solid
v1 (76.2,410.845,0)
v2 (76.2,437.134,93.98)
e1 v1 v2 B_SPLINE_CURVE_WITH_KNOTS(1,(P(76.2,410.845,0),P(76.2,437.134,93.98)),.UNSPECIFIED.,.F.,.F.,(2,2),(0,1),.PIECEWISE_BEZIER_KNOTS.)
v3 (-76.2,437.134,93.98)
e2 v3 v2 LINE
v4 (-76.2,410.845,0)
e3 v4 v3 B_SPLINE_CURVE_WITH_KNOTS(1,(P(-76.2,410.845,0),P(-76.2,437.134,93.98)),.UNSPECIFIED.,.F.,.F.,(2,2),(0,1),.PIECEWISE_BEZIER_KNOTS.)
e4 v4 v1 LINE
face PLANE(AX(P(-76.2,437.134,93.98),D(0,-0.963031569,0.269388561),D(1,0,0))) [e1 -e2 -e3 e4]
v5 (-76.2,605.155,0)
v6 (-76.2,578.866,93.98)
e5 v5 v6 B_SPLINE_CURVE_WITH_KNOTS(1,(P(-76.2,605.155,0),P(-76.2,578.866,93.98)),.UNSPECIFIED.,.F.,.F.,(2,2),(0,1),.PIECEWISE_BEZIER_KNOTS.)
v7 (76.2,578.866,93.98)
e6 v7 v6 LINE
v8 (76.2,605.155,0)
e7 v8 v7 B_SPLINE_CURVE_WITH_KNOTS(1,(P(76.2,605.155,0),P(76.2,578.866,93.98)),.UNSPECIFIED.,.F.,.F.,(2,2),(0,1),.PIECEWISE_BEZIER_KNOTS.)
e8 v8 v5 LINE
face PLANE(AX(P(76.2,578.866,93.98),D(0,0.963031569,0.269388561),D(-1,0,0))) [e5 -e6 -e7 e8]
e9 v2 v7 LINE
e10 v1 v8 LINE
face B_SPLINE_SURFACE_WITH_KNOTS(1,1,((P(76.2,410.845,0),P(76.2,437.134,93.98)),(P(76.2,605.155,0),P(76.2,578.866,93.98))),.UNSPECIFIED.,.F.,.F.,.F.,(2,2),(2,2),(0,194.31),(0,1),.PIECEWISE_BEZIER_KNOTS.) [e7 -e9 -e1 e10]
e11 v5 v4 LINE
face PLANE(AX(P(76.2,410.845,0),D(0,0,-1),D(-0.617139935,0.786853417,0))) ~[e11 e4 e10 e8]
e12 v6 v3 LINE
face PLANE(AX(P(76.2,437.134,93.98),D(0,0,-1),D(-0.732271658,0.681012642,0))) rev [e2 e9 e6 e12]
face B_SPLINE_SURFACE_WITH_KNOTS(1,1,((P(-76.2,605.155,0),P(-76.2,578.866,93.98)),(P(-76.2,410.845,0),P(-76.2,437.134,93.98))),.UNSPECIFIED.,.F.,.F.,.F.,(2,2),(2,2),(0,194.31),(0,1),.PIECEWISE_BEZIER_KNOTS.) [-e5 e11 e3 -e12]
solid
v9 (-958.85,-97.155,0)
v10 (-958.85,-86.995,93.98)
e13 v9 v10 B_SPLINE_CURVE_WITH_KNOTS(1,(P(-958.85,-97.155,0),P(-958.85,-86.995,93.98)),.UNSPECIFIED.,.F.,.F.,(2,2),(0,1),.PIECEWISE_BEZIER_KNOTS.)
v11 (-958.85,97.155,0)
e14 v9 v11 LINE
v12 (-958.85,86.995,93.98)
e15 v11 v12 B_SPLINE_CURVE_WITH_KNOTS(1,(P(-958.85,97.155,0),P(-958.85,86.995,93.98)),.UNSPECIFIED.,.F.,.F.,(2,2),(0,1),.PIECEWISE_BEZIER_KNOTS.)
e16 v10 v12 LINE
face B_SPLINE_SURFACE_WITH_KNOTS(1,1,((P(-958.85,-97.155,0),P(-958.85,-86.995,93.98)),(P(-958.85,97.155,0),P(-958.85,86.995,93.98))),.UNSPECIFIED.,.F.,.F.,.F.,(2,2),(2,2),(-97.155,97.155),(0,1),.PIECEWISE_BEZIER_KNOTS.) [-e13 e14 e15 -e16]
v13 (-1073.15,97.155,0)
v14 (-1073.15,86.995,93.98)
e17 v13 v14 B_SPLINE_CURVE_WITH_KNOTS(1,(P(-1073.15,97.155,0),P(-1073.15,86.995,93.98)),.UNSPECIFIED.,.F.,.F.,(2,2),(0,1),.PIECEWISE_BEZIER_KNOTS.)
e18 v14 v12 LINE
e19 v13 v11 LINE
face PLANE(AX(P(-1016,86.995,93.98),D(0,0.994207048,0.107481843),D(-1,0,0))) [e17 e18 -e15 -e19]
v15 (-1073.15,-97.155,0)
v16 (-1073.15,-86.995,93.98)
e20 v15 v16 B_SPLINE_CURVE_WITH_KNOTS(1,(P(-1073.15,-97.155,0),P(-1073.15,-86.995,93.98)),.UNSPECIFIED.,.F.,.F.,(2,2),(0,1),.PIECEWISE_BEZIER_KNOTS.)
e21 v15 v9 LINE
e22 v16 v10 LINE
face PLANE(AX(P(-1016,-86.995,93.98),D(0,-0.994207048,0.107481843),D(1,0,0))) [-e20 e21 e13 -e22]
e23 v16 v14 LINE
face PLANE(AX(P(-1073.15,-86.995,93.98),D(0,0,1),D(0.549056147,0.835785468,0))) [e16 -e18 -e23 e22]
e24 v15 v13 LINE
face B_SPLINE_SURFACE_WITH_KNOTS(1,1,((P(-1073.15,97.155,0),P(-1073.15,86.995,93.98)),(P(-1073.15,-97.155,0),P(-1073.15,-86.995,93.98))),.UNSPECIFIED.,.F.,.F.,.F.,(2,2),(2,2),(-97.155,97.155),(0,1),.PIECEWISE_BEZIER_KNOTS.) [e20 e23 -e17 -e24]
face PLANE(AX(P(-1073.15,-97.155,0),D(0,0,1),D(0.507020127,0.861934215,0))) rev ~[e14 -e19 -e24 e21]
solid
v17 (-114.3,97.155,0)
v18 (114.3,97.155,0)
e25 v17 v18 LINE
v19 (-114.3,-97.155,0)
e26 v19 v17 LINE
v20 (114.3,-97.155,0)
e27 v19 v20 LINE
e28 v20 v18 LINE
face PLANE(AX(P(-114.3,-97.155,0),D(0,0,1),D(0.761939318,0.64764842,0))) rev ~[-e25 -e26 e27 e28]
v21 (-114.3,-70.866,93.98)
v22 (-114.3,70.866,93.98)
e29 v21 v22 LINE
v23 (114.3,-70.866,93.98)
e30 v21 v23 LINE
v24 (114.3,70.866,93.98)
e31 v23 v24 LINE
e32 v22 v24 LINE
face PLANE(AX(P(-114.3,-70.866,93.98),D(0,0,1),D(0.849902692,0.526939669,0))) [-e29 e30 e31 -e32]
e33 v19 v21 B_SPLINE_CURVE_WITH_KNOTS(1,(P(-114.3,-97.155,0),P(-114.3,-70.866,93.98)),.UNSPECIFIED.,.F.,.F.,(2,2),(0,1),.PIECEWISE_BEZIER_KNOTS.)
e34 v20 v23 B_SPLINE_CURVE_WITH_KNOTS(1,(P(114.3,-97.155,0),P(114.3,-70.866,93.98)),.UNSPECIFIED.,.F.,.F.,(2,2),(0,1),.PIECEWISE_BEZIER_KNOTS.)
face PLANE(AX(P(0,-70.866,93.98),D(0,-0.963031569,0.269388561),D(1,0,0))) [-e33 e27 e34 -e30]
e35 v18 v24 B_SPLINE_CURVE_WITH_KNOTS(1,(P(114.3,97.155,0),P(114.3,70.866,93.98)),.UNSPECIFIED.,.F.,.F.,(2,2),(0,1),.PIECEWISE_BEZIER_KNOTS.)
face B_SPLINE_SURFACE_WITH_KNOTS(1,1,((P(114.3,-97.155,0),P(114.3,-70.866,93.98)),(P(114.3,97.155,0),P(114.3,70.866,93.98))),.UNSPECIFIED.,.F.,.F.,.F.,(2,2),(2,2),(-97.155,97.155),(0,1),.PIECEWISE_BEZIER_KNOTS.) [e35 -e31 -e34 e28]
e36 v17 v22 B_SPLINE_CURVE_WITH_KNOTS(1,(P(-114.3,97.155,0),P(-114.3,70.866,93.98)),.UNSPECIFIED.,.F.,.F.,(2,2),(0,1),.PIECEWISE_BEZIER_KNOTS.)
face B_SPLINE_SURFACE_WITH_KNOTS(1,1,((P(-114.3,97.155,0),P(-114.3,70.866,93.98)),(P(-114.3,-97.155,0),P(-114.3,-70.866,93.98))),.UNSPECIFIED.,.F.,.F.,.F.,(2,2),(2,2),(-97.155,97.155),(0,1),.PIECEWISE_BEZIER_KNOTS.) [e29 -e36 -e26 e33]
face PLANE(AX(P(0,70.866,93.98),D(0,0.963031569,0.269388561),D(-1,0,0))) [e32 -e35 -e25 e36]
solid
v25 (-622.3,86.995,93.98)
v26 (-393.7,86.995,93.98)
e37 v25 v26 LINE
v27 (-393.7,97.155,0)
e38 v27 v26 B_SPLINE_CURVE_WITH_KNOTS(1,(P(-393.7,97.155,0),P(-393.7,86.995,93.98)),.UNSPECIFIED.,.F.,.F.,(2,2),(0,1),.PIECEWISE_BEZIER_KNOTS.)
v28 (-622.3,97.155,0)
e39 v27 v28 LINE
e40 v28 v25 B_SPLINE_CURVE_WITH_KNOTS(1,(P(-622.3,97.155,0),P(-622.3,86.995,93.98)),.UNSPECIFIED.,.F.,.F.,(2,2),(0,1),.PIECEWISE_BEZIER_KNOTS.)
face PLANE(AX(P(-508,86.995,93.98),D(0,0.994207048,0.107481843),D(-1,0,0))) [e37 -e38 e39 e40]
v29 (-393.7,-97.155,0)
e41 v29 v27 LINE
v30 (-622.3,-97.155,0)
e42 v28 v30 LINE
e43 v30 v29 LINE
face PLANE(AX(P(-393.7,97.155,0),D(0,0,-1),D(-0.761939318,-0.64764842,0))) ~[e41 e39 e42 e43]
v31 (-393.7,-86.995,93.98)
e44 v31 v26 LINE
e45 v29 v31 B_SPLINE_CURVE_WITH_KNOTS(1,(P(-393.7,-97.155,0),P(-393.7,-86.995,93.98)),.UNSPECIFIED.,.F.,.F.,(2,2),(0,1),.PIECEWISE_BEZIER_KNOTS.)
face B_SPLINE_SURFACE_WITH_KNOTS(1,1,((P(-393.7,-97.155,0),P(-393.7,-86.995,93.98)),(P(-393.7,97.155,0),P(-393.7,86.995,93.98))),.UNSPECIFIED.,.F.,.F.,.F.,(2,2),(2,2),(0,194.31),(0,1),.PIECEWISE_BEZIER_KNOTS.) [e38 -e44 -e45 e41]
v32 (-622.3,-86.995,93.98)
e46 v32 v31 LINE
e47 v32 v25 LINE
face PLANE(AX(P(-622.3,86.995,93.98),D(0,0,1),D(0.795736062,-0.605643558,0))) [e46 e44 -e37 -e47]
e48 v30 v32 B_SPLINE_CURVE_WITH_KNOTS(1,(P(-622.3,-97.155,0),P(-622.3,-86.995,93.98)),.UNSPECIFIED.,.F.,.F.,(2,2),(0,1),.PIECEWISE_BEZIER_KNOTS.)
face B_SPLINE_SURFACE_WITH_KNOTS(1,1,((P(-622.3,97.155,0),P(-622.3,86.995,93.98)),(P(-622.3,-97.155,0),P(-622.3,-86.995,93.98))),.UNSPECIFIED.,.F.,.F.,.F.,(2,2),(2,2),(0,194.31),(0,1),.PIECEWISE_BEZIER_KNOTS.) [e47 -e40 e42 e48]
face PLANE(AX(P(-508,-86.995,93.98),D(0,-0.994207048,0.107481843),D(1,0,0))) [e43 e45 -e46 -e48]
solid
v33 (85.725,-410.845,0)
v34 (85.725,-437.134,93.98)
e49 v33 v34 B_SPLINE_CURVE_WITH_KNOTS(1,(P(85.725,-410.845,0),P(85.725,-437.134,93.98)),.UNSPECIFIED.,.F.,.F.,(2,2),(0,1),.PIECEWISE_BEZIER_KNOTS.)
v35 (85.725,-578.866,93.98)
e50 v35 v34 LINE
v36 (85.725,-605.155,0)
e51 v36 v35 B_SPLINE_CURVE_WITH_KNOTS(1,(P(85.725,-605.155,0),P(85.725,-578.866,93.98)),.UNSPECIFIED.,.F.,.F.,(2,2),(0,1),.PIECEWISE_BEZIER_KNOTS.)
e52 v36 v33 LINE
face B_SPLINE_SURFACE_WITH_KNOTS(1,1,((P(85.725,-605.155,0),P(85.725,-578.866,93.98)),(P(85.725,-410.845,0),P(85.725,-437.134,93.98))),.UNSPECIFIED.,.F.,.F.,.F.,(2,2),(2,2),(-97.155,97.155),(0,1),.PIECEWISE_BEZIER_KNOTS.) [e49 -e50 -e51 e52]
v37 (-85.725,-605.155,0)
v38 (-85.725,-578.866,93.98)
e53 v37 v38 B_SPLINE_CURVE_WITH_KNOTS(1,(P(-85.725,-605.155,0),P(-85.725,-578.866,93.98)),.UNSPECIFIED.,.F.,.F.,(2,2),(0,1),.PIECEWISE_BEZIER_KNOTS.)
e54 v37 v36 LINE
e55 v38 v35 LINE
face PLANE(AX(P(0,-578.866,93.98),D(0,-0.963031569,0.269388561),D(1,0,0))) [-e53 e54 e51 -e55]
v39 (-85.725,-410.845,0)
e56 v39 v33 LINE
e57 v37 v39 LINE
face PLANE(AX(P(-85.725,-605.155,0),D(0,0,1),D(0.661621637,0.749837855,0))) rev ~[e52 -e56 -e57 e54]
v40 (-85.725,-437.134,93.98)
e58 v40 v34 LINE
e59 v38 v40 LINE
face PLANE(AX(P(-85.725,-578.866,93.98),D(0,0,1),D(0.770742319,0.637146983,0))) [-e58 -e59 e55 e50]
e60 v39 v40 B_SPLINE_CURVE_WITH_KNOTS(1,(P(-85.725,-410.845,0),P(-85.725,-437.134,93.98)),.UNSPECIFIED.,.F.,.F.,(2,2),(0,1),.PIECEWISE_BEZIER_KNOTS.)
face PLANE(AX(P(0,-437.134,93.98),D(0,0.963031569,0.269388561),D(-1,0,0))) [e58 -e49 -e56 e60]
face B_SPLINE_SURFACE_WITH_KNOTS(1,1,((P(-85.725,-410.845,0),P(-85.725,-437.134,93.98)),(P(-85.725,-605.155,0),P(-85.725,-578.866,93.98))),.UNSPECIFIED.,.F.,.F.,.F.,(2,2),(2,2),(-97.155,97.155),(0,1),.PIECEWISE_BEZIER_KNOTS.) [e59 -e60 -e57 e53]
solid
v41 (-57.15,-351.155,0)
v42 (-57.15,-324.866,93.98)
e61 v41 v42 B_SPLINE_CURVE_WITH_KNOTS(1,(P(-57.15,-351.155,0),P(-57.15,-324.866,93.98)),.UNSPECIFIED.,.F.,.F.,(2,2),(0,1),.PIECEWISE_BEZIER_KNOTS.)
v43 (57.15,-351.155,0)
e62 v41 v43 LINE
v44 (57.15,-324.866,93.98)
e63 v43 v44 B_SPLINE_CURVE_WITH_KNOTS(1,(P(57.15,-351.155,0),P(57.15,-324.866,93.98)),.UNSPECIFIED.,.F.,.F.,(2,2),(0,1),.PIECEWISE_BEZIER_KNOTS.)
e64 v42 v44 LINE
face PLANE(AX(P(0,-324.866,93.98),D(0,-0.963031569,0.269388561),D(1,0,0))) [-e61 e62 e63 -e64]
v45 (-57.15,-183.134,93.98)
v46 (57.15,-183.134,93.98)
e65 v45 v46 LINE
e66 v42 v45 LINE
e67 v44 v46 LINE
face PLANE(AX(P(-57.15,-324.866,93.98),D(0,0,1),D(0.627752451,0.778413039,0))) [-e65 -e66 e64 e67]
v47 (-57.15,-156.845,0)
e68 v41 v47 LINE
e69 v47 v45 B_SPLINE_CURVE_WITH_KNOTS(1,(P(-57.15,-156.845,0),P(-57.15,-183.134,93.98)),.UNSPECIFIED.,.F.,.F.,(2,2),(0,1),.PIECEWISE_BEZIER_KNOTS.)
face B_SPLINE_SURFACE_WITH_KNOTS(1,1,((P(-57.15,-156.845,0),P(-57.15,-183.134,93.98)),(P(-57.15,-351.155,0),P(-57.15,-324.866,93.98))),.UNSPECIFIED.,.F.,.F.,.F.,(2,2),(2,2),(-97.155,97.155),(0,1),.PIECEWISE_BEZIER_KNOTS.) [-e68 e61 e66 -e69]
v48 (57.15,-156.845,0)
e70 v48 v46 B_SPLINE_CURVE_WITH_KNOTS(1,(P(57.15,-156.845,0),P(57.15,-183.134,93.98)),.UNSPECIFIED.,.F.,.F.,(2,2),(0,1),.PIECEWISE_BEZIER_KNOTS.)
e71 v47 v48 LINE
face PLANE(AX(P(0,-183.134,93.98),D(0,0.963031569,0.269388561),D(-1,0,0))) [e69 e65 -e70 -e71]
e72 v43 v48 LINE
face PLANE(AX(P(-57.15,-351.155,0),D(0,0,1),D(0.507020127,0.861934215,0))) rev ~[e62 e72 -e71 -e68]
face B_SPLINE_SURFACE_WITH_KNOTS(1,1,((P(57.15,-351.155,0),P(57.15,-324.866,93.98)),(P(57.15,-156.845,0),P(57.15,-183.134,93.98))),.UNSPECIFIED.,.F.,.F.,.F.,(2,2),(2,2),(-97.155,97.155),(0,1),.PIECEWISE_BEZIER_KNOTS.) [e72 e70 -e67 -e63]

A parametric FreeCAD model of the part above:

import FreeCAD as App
import Part
import Sketcher
from FreeCAD import Vector
Q = App.Units.Quantity


def add_polygon(sketch, points):
    """Adds a closed chain of lines whose ends are joined by coincident constraints."""
    first, n = sketch.GeometryCount, len(points)
    for a, b in zip(points, points[1:] + points[:1]):
        sketch.addGeometry(Part.LineSegment(App.Vector(*a, 0), App.Vector(*b, 0)), False)
    for i in range(n):
        sketch.addConstraint(Sketcher.Constraint("Coincident", first + i, 2, first + (i + 1) % n, 1))

doc = App.newDocument("Part")
body = doc.addObject("PartDesign::Body", "Body")

# Sketch on XY plane
sketch1 = body.newObject("Sketcher::SketchObject", "Sketch")
sketch1.AttachmentSupport = (doc.getObject("XY_Plane"), [""])
sketch1.MapMode = "FlatFace"
add_polygon(sketch1, [(-114, 97), (-114, -97), (114, -97), (114, 97)])  # lines 0-3
sketch1.addConstraint(Sketcher.Constraint("Vertical", 0))
sketch1.addConstraint(Sketcher.Constraint("Horizontal", 1))
sketch1.addConstraint(Sketcher.Constraint("Vertical", 2))
sketch1.addConstraint(Sketcher.Constraint("Horizontal", 3))
sketch1.addConstraint(Sketcher.Constraint("Symmetric", 0, 2, 2, 2, -1, 1))
sketch1.addConstraint(Sketcher.Constraint("DistanceX", 1, 1, 1, 2, Q("9 in")))
sketch1.addConstraint(Sketcher.Constraint("DistanceY", 0, 2, 0, 1, Q("7.65 in")))

# Sketch on XY plane
sketch2 = body.newObject("Sketcher::SketchObject", "Sketch001")
sketch2.AttachmentSupport = (doc.getObject("XY_Plane"), [""])
sketch2.MapMode = "FlatFace"
sketch2.AttachmentOffset = App.Placement(Vector(0, 0, 3.7 * 25.4), App.Rotation())
add_polygon(sketch2, [(-114, 71), (-114, -71), (114, -71), (114, 71)])  # lines 0-3
sketch2.addConstraint(Sketcher.Constraint("Vertical", 0))
sketch2.addConstraint(Sketcher.Constraint("Horizontal", 1))
sketch2.addConstraint(Sketcher.Constraint("Vertical", 2))
sketch2.addConstraint(Sketcher.Constraint("Horizontal", 3))
sketch2.addConstraint(Sketcher.Constraint("Symmetric", 0, 2, 2, 2, -1, 1))
sketch2.addConstraint(Sketcher.Constraint("DistanceX", 1, 1, 1, 2, Q("9 in")))
sketch2.addConstraint(Sketcher.Constraint("DistanceY", 0, 2, 0, 1, Q("5.58 in")))

additiveloft = body.newObject("PartDesign::AdditiveLoft", "AdditiveLoft")
additiveloft.Profile = sketch1
additiveloft.Sections = [sketch2]
body2 = doc.addObject("PartDesign::Body", "Body001")

# Sketch on XY plane
sketch3 = body2.newObject("Sketcher::SketchObject", "Sketch002")
sketch3.AttachmentSupport = (doc.getObject("XY_Plane001"), [""])
sketch3.MapMode = "FlatFace"
add_polygon(sketch3, [(-57, -157), (-57, -351), (57, -351), (57, -157)])  # lines 0-3
sketch3.addConstraint(Sketcher.Constraint("Vertical", 0))
sketch3.addConstraint(Sketcher.Constraint("Horizontal", 1))
sketch3.addConstraint(Sketcher.Constraint("Vertical", 2))
sketch3.addConstraint(Sketcher.Constraint("Horizontal", 3))
sketch3.addConstraint(Sketcher.Constraint("DistanceX", 1, 1, 1, 2, Q("4.5 in")))
sketch3.addConstraint(Sketcher.Constraint("DistanceY", 0, 2, 0, 1, Q("7.65 in")))
sketch3.addConstraint(Sketcher.Constraint("DistanceX", 0, 2, -1, 1, Q("2.25 in")))
sketch3.addConstraint(Sketcher.Constraint("DistanceY", 0, 2, -1, 1, Q("13.825 in")))

# Sketch on XY plane
sketch4 = body2.newObject("Sketcher::SketchObject", "Sketch003")
sketch4.AttachmentSupport = (doc.getObject("XY_Plane001"), [""])
sketch4.MapMode = "FlatFace"
sketch4.AttachmentOffset = App.Placement(Vector(0, 0, 3.7 * 25.4), App.Rotation())
add_polygon(sketch4, [(-57, -183), (-57, -325), (57, -325), (57, -183)])  # lines 0-3
sketch4.addConstraint(Sketcher.Constraint("Vertical", 0))
sketch4.addConstraint(Sketcher.Constraint("Horizontal", 1))
sketch4.addConstraint(Sketcher.Constraint("Vertical", 2))
sketch4.addConstraint(Sketcher.Constraint("Horizontal", 3))
sketch4.addConstraint(Sketcher.Constraint("DistanceX", 1, 1, 1, 2, Q("4.5 in")))
sketch4.addConstraint(Sketcher.Constraint("DistanceY", 0, 2, 0, 1, Q("5.58 in")))
sketch4.addConstraint(Sketcher.Constraint("DistanceX", 0, 2, -1, 1, Q("2.25 in")))
sketch4.addConstraint(Sketcher.Constraint("DistanceY", 0, 2, -1, 1, Q("12.79 in")))

additiveloft2 = body2.newObject("PartDesign::AdditiveLoft", "AdditiveLoft001")
additiveloft2.Profile = sketch3
additiveloft2.Sections = [sketch4]
body3 = doc.addObject("PartDesign::Body", "Body002")

# Sketch on XY plane
sketch5 = body3.newObject("Sketcher::SketchObject", "Sketch004")
sketch5.AttachmentSupport = (doc.getObject("XY_Plane002"), [""])
sketch5.MapMode = "FlatFace"
add_polygon(sketch5, [(-86, -411), (-86, -605), (86, -605), (86, -411)])  # lines 0-3
sketch5.addConstraint(Sketcher.Constraint("Vertical", 0))
sketch5.addConstraint(Sketcher.Constraint("Horizontal", 1))
sketch5.addConstraint(Sketcher.Constraint("Vertical", 2))
sketch5.addConstraint(Sketcher.Constraint("Horizontal", 3))
sketch5.addConstraint(Sketcher.Constraint("DistanceX", 1, 1, 1, 2, Q("6.75 in")))
sketch5.addConstraint(Sketcher.Constraint("DistanceY", 0, 2, 0, 1, Q("7.65 in")))
sketch5.addConstraint(Sketcher.Constraint("DistanceX", 0, 2, -1, 1, Q("3.375 in")))
sketch5.addConstraint(Sketcher.Constraint("DistanceY", 0, 2, -1, 1, Q("23.825 in")))

# Sketch on XY plane
sketch6 = body3.newObject("Sketcher::SketchObject", "Sketch005")
sketch6.AttachmentSupport = (doc.getObject("XY_Plane002"), [""])
sketch6.MapMode = "FlatFace"
sketch6.AttachmentOffset = App.Placement(Vector(0, 0, 3.7 * 25.4), App.Rotation())
add_polygon(sketch6, [(-86, -437), (-86, -579), (86, -579), (86, -437)])  # lines 0-3
sketch6.addConstraint(Sketcher.Constraint("Vertical", 0))
sketch6.addConstraint(Sketcher.Constraint("Horizontal", 1))
sketch6.addConstraint(Sketcher.Constraint("Vertical", 2))
sketch6.addConstraint(Sketcher.Constraint("Horizontal", 3))
sketch6.addConstraint(Sketcher.Constraint("DistanceX", 1, 1, 1, 2, Q("6.75 in")))
sketch6.addConstraint(Sketcher.Constraint("DistanceY", 0, 2, 0, 1, Q("5.58 in")))
sketch6.addConstraint(Sketcher.Constraint("DistanceY", 0, 2, -1, 1, Q("22.79 in")))
sketch6.addConstraint(Sketcher.Constraint("DistanceX", 0, 2, -1, 1, Q("3.375 in")))

additiveloft3 = body3.newObject("PartDesign::AdditiveLoft", "AdditiveLoft002")
additiveloft3.Profile = sketch5
additiveloft3.Sections = [sketch6]
body4 = doc.addObject("PartDesign::Body", "Body003")

# Sketch on XY plane
sketch7 = body4.newObject("Sketcher::SketchObject", "Sketch006")
sketch7.AttachmentSupport = (doc.getObject("XY_Plane003"), [""])
sketch7.MapMode = "FlatFace"
add_polygon(sketch7, [(76, 411), (76, 605), (-76, 605), (-76, 411)])  # lines 0-3
sketch7.addConstraint(Sketcher.Constraint("Vertical", 0))
sketch7.addConstraint(Sketcher.Constraint("Horizontal", 1))
sketch7.addConstraint(Sketcher.Constraint("Vertical", 2))
sketch7.addConstraint(Sketcher.Constraint("Horizontal", 3))
sketch7.addConstraint(Sketcher.Constraint("DistanceX", 1, 2, 1, 1, Q("6 in")))
sketch7.addConstraint(Sketcher.Constraint("DistanceX", -1, 1, 0, 2, Q("3 in")))
sketch7.addConstraint(Sketcher.Constraint("DistanceY", 0, 1, 0, 2, Q("7.65 in")))
sketch7.addConstraint(Sketcher.Constraint("DistanceY", -1, 1, 0, 2, Q("23.825 in")))

# Sketch on XY plane
sketch8 = body4.newObject("Sketcher::SketchObject", "Sketch007")
sketch8.AttachmentSupport = (doc.getObject("XY_Plane003"), [""])
sketch8.MapMode = "FlatFace"
sketch8.AttachmentOffset = App.Placement(Vector(0, 0, 3.7 * 25.4), App.Rotation())
add_polygon(sketch8, [(76, 437), (76, 579), (-76, 579), (-76, 437)])  # lines 0-3
sketch8.addConstraint(Sketcher.Constraint("Vertical", 0))
sketch8.addConstraint(Sketcher.Constraint("Horizontal", 1))
sketch8.addConstraint(Sketcher.Constraint("Vertical", 2))
sketch8.addConstraint(Sketcher.Constraint("Horizontal", 3))
sketch8.addConstraint(Sketcher.Constraint("DistanceX", 1, 2, 1, 1, Q("6 in")))
sketch8.addConstraint(Sketcher.Constraint("DistanceX", -1, 1, 0, 2, Q("3 in")))
sketch8.addConstraint(Sketcher.Constraint("DistanceY", 0, 1, 0, 2, Q("5.58 in")))
sketch8.addConstraint(Sketcher.Constraint("DistanceY", -1, 1, 0, 2, Q("22.79 in")))

additiveloft4 = body4.newObject("PartDesign::AdditiveLoft", "AdditiveLoft003")
additiveloft4.Profile = sketch7
additiveloft4.Sections = [sketch8]
body5 = doc.addObject("PartDesign::Body", "Body004")

# Sketch on XY plane
sketch9 = body5.newObject("Sketcher::SketchObject", "Sketch008")
sketch9.AttachmentSupport = (doc.getObject("XY_Plane004"), [""])
sketch9.MapMode = "FlatFace"
add_polygon(sketch9, [(-394, 97), (-622, 97), (-622, -97), (-394, -97)])  # lines 0-3
sketch9.addConstraint(Sketcher.Constraint("Horizontal", 0))
sketch9.addConstraint(Sketcher.Constraint("Vertical", 1))
sketch9.addConstraint(Sketcher.Constraint("Horizontal", 2))
sketch9.addConstraint(Sketcher.Constraint("Vertical", 3))
sketch9.addConstraint(Sketcher.Constraint("DistanceX", 0, 2, 0, 1, Q("9 in")))
sketch9.addConstraint(Sketcher.Constraint("DistanceY", 1, 2, 1, 1, Q("7.65 in")))
sketch9.addConstraint(Sketcher.Constraint("DistanceX", 0, 2, -1, 1, Q("24.5 in")))
sketch9.addConstraint(Sketcher.Constraint("DistanceY", -1, 1, 0, 2, Q("3.825 in")))

# Sketch on XY plane
sketch10 = body5.newObject("Sketcher::SketchObject", "Sketch009")
sketch10.AttachmentSupport = (doc.getObject("XY_Plane004"), [""])
sketch10.MapMode = "FlatFace"
sketch10.AttachmentOffset = App.Placement(Vector(0, 0, 3.7 * 25.4), App.Rotation())
add_polygon(sketch10, [(-622, 87), (-622, -87), (-394, -87), (-394, 87)])  # lines 0-3
sketch10.addConstraint(Sketcher.Constraint("Vertical", 0))
sketch10.addConstraint(Sketcher.Constraint("Horizontal", 1))
sketch10.addConstraint(Sketcher.Constraint("Vertical", 2))
sketch10.addConstraint(Sketcher.Constraint("Horizontal", 3))
sketch10.addConstraint(Sketcher.Constraint("DistanceX", 1, 1, 1, 2, Q("9 in")))
sketch10.addConstraint(Sketcher.Constraint("DistanceY", 0, 2, 0, 1, Q("6.85 in")))
sketch10.addConstraint(Sketcher.Constraint("DistanceX", 0, 2, -1, 1, Q("24.5 in")))
sketch10.addConstraint(Sketcher.Constraint("DistanceY", 0, 2, -1, 1, Q("3.425 in")))

additiveloft5 = body5.newObject("PartDesign::AdditiveLoft", "AdditiveLoft004")
additiveloft5.Profile = sketch9
additiveloft5.Sections = [sketch10]
body6 = doc.addObject("PartDesign::Body", "Body005")

# Sketch on XY plane
sketch11 = body6.newObject("Sketcher::SketchObject", "Sketch010")
sketch11.AttachmentSupport = (doc.getObject("XY_Plane005"), [""])
sketch11.MapMode = "FlatFace"
add_polygon(sketch11, [(-1073, 97), (-1073, -97), (-959, -97), (-959, 97)])  # lines 0-3
sketch11.addConstraint(Sketcher.Constraint("Vertical", 0))
sketch11.addConstraint(Sketcher.Constraint("Horizontal", 1))
sketch11.addConstraint(Sketcher.Constraint("Vertical", 2))
sketch11.addConstraint(Sketcher.Constraint("Horizontal", 3))
sketch11.addConstraint(Sketcher.Constraint("DistanceX", 1, 1, 1, 2, Q("4.5 in")))
sketch11.addConstraint(Sketcher.Constraint("DistanceY", 0, 2, 0, 1, Q("7.65 in")))
sketch11.addConstraint(Sketcher.Constraint("DistanceX", 0, 2, -1, 1, Q("42.25 in")))
sketch11.addConstraint(Sketcher.Constraint("DistanceY", 0, 2, -1, 1, Q("3.825 in")))

# Sketch on XY plane
sketch12 = body6.newObject("Sketcher::SketchObject", "Sketch011")
sketch12.AttachmentSupport = (doc.getObject("XY_Plane005"), [""])
sketch12.MapMode = "FlatFace"
sketch12.AttachmentOffset = App.Placement(Vector(0, 0, 3.7 * 25.4), App.Rotation())
add_polygon(sketch12, [(-1073, 87), (-1073, -87), (-959, -87), (-959, 87)])  # lines 0-3
sketch12.addConstraint(Sketcher.Constraint("Vertical", 0))
sketch12.addConstraint(Sketcher.Constraint("Horizontal", 1))
sketch12.addConstraint(Sketcher.Constraint("Vertical", 2))
sketch12.addConstraint(Sketcher.Constraint("Horizontal", 3))
sketch12.addConstraint(Sketcher.Constraint("DistanceX", 1, 1, 1, 2, Q("4.5 in")))
sketch12.addConstraint(Sketcher.Constraint("DistanceY", 0, 2, 0, 1, Q("6.85 in")))
sketch12.addConstraint(Sketcher.Constraint("DistanceX", 0, 2, -1, 1, Q("42.25 in")))
sketch12.addConstraint(Sketcher.Constraint("DistanceY", 0, 2, -1, 1, Q("3.425 in")))

additiveloft6 = body6.newObject("PartDesign::AdditiveLoft", "AdditiveLoft005")
additiveloft6.Profile = sketch11
additiveloft6.Sections = [sketch12]

doc.recompute()
